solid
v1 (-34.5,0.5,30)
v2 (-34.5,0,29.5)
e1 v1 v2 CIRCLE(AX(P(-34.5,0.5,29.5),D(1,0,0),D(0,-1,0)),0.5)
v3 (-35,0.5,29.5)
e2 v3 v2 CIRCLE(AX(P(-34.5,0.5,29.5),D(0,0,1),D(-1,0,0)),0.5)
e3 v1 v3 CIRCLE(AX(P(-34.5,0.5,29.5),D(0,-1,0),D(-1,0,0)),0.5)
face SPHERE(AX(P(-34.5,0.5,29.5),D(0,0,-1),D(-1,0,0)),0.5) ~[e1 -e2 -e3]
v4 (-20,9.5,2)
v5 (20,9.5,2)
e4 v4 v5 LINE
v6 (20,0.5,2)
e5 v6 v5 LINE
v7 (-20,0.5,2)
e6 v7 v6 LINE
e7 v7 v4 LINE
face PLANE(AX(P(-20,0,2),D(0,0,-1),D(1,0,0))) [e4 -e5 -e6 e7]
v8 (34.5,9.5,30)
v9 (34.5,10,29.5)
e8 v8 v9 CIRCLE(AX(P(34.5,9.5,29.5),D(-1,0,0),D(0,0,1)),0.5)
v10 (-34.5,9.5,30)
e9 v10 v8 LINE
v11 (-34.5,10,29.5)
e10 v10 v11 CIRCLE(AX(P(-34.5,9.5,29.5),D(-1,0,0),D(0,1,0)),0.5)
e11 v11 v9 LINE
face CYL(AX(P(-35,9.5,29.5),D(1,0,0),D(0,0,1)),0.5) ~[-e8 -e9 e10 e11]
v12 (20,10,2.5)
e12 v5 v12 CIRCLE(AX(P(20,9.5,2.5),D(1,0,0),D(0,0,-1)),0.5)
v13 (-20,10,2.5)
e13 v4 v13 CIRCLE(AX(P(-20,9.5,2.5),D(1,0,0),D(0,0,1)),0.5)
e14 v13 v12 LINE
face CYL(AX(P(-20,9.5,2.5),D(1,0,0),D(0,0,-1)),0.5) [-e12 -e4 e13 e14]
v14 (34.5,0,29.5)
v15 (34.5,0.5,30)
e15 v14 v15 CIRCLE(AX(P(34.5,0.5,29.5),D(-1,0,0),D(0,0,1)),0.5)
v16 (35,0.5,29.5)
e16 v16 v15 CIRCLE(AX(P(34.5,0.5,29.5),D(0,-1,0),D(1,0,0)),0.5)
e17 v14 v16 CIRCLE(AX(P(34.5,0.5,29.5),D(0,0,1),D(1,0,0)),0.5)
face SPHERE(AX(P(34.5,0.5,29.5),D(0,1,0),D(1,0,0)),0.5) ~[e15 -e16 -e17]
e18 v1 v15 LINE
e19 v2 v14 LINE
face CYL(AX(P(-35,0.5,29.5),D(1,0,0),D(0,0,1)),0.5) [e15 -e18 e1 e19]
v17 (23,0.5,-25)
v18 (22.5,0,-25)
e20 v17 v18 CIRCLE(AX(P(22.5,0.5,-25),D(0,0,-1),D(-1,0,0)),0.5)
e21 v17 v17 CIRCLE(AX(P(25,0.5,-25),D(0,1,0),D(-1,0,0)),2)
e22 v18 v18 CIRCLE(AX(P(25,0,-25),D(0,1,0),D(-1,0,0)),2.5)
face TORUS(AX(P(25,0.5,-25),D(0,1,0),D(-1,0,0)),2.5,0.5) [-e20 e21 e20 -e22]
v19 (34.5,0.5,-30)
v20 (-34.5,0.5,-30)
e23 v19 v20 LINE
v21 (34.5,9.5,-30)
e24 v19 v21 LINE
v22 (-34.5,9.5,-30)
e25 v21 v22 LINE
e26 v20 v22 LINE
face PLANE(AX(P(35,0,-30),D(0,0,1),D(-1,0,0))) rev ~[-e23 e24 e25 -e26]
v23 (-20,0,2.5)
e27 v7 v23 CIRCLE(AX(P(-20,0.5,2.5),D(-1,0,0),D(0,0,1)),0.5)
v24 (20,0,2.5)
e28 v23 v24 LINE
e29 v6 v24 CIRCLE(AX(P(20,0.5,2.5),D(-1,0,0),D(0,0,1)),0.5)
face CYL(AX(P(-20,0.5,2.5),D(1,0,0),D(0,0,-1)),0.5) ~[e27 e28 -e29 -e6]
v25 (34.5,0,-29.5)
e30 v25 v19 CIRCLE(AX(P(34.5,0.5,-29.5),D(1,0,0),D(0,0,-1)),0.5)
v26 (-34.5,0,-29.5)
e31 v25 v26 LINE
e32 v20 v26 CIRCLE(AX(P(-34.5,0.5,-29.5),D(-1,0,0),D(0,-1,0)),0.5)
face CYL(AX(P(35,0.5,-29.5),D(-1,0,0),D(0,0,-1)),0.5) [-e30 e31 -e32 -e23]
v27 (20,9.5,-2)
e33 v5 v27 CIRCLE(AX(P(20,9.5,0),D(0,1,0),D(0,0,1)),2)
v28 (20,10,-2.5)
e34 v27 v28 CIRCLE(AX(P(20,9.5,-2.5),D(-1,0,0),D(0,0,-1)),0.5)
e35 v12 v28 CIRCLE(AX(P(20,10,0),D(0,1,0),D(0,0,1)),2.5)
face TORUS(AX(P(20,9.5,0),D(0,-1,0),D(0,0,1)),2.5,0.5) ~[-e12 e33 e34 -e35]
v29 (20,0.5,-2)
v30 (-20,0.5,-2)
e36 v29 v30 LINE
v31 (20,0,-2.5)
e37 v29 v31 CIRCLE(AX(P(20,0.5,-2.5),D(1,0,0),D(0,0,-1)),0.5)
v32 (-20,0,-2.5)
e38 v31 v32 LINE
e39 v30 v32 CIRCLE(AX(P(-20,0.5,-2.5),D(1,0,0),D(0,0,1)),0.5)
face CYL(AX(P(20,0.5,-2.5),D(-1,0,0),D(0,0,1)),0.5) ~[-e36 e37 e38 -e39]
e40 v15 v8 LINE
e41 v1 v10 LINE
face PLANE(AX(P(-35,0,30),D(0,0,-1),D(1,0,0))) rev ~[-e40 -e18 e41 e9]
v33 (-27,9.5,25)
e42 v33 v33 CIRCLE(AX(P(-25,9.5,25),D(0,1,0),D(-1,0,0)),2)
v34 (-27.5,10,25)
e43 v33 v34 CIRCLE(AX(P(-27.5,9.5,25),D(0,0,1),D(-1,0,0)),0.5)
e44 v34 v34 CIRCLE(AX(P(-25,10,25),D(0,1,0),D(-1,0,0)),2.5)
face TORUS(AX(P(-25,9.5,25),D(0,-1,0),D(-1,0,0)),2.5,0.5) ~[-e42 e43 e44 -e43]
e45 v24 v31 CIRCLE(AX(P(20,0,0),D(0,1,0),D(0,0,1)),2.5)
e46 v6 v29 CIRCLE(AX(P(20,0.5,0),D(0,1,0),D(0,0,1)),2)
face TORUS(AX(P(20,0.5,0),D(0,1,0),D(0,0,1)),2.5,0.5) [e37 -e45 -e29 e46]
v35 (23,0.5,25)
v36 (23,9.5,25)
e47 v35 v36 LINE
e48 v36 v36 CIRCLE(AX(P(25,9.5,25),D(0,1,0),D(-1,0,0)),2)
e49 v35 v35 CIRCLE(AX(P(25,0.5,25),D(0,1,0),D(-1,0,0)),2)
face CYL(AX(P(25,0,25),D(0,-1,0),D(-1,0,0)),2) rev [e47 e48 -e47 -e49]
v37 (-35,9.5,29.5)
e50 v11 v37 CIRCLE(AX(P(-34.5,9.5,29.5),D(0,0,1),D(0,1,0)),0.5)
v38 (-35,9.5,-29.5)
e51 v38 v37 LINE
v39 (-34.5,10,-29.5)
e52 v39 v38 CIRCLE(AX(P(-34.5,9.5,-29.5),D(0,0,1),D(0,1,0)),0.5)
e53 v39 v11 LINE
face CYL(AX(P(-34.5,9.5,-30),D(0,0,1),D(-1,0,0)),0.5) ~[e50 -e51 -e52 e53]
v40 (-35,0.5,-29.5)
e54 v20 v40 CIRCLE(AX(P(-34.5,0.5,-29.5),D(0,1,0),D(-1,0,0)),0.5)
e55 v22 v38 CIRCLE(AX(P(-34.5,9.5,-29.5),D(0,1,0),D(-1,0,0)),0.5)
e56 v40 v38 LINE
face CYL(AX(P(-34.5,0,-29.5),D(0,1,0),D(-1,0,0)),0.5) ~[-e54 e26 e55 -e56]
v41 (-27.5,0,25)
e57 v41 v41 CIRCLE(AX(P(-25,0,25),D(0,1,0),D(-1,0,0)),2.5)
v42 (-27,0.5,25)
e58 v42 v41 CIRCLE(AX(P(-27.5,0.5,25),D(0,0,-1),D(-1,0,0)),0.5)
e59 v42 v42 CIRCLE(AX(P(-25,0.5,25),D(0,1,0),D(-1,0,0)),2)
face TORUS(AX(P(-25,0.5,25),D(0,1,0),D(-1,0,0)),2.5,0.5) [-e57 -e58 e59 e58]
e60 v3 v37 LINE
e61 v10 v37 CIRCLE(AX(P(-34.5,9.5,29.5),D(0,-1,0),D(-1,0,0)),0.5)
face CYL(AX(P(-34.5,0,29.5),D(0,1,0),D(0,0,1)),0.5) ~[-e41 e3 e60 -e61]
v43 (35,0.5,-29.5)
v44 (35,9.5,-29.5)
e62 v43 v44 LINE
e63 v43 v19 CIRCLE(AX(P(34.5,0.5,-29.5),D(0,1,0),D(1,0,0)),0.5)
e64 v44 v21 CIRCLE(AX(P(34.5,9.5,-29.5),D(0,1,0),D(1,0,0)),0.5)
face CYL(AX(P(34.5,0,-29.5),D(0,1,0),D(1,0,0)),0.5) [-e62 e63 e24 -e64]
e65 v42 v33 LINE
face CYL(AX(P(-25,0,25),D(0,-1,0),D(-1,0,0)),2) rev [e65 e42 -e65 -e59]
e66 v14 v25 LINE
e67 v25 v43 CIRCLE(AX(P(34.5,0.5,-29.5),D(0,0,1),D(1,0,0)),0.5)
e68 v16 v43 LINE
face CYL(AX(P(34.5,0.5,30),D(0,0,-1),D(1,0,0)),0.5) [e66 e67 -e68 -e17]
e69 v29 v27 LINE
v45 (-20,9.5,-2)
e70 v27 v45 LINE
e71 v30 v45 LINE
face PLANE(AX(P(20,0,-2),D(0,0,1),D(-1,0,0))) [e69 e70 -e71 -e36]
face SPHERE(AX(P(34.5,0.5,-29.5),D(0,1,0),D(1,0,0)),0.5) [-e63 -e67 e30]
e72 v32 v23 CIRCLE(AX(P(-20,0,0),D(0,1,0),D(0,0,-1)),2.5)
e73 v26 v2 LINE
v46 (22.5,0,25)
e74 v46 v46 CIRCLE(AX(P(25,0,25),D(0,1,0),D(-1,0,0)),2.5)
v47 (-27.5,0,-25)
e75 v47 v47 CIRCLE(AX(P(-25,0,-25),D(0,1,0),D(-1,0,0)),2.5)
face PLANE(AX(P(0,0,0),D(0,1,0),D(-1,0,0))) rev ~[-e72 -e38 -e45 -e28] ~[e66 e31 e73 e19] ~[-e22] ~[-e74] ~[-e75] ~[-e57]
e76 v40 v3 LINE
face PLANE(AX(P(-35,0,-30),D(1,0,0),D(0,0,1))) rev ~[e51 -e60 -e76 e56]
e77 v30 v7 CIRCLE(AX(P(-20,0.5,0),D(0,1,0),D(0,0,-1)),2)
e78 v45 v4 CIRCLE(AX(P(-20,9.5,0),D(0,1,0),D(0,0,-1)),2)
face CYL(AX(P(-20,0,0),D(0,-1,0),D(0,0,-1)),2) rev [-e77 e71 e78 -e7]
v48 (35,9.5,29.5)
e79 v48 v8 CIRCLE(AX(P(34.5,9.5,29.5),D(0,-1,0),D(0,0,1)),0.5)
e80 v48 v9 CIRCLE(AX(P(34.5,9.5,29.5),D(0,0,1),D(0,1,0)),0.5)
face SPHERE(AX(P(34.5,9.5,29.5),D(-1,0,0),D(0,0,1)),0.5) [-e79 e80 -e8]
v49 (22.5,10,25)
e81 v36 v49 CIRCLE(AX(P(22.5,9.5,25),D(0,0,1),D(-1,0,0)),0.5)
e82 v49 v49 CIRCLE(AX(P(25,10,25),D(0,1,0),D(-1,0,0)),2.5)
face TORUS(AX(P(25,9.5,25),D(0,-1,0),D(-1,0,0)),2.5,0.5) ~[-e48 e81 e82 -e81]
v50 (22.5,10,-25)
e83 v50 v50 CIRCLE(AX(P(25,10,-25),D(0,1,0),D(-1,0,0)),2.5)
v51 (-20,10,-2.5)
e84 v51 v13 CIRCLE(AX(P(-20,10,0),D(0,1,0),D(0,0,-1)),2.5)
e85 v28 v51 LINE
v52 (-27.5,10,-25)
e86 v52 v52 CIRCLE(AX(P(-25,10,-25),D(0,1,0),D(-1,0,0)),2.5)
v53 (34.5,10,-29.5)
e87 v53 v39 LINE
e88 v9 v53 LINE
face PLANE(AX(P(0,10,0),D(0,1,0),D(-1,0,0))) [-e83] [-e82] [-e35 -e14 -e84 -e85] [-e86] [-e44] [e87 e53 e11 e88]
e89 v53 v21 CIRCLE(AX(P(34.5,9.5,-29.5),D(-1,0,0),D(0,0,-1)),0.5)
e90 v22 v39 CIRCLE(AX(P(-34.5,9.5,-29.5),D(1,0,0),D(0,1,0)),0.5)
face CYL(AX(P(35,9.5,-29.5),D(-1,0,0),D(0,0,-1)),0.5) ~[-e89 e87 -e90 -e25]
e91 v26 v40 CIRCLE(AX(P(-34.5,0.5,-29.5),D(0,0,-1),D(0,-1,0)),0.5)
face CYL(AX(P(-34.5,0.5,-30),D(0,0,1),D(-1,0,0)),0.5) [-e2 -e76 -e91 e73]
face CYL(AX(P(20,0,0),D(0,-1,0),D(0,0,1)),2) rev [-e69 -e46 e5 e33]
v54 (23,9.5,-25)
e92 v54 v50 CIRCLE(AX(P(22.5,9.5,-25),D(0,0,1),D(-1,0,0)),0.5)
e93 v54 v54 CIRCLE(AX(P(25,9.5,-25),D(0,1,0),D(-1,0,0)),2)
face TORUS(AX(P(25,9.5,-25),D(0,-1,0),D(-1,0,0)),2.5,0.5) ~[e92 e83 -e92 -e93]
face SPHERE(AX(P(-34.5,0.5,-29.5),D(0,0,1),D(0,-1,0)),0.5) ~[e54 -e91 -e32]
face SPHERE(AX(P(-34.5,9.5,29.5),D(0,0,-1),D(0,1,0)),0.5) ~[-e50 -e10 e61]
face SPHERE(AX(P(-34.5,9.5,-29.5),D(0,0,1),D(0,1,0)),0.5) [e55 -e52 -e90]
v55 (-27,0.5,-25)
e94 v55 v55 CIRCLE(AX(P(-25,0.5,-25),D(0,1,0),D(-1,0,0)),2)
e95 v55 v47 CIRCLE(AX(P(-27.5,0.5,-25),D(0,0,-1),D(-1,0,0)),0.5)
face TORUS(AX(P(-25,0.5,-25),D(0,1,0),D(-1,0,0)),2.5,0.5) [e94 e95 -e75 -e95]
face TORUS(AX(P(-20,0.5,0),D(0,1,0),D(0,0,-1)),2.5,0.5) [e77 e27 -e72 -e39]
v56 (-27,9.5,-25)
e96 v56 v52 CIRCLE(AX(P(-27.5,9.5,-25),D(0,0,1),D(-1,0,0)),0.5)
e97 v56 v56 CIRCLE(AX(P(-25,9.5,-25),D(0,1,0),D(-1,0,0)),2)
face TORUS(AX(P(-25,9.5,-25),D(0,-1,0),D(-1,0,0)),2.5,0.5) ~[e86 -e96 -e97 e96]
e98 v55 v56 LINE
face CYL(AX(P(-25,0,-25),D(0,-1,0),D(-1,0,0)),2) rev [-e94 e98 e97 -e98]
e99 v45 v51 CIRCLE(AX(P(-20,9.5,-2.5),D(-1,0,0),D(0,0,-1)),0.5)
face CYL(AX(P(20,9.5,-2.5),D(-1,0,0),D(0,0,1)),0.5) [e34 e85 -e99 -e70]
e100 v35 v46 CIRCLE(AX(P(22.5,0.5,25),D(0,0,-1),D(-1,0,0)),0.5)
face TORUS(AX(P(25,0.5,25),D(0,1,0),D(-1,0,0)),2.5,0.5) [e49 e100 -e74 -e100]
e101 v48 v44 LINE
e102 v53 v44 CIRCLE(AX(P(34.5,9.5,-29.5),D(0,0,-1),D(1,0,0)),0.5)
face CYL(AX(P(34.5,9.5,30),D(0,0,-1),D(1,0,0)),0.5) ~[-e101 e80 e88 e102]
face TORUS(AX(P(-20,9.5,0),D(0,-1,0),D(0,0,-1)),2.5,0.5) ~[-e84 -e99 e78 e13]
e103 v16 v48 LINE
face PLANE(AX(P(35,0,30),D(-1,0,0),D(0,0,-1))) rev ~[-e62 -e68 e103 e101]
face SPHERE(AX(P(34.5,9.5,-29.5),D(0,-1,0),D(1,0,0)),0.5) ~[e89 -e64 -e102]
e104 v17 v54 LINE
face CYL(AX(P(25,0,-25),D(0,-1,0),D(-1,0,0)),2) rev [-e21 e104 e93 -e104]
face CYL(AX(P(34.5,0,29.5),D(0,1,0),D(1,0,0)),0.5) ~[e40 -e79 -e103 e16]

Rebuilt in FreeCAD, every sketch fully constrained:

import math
import FreeCAD as App
import Part
import Sketcher

V = App.Vector
Q = App.Units.Quantity

doc = App.newDocument("Part")
body = doc.addObject("PartDesign::Body", "Body")

# Sketch on XZ plane
sketch1 = body.newObject("Sketcher::SketchObject", "Sketch")
sketch1.AttachmentSupport = (doc.getObject("XZ_Plane"), [""])
sketch1.MapMode = "FlatFace"
sketch1.addGeometry(Part.LineSegment(V(35, 30, 0), V(35, -30, 0)), False)
sketch1.addGeometry(Part.LineSegment(V(35, -30, 0), V(-35, -30, 0)), False)
sketch1.addGeometry(Part.LineSegment(V(-35, -30, 0), V(-35, 30, 0)), False)
sketch1.addGeometry(Part.LineSegment(V(-35, 30, 0), V(35, 30, 0)), False)
sketch1.addGeometry(Part.Circle(V(25, -25, 0), V(0, 0, 1), 2), False)
sketch1.addGeometry(Part.Circle(V(-25, -25, 0), V(0, 0, 1), 2), False)
sketch1.addGeometry(Part.Circle(V(25, 25, 0), V(0, 0, 1), 2), False)
sketch1.addGeometry(Part.ArcOfCircle(Part.Circle(V(-20, 0, 0), V(0, 0, 1), 2), math.radians(90), math.radians(270)), False)
sketch1.addGeometry(Part.LineSegment(V(-20, -2, 0), V(20, -2, 0)), False)
sketch1.addGeometry(Part.ArcOfCircle(Part.Circle(V(20, 0, 0), V(0, 0, 1), 2), math.radians(-90), math.radians(90)), False)
sketch1.addGeometry(Part.LineSegment(V(20, 2, 0), V(-20, 2, 0)), False)
sketch1.addGeometry(Part.Circle(V(-25, 25, 0), V(0, 0, 1), 2), False)
sketch1.addConstraint(Sketcher.Constraint("Coincident", 0, 2, 1, 1))
sketch1.addConstraint(Sketcher.Constraint("Coincident", 1, 2, 2, 1))
sketch1.addConstraint(Sketcher.Constraint("Coincident", 2, 2, 3, 1))
sketch1.addConstraint(Sketcher.Constraint("Coincident", 3, 2, 0, 1))
sketch1.addConstraint(Sketcher.Constraint("Tangent", 7, 2, 8, 1))
sketch1.addConstraint(Sketcher.Constraint("Tangent", 8, 2, 9, 1))
sketch1.addConstraint(Sketcher.Constraint("Tangent", 9, 2, 10, 1))
sketch1.addConstraint(Sketcher.Constraint("Tangent", 10, 2, 7, 1))
sketch1.addConstraint(Sketcher.Constraint("Vertical", 0))
sketch1.addConstraint(Sketcher.Constraint("Horizontal", 1))
sketch1.addConstraint(Sketcher.Constraint("Vertical", 2))
sketch1.addConstraint(Sketcher.Constraint("Horizontal", 3))
sketch1.addConstraint(Sketcher.Constraint("Horizontal", 8))
sketch1.addConstraint(Sketcher.Constraint("Horizontal", 10))
sketch1.addConstraint(Sketcher.Constraint("Equal", 4, 5))
sketch1.addConstraint(Sketcher.Constraint("Equal", 5, 6))
sketch1.addConstraint(Sketcher.Constraint("Equal", 6, 7))
sketch1.addConstraint(Sketcher.Constraint("Equal", 9, 11))
sketch1.addConstraint(Sketcher.Constraint("Symmetric", 5, 3, 6, 3, -1, 1))
sketch1.addConstraint(Sketcher.Constraint("Symmetric", 7, 3, 9, 3, -1, 1))
sketch1.addConstraint(Sketcher.Constraint("Symmetric", 4, 3, 11, 3, -1, 1))
sketch1.addConstraint(Sketcher.Constraint("Symmetric", 0, 2, 2, 2, -1, 1))
sketch1.addConstraint(Sketcher.Constraint("Symmetric", 4, 3, 5, 3, -2))
sketch1.addConstraint(Sketcher.Constraint("Diameter", 4, Q("4 mm")))
sketch1.addConstraint(Sketcher.Constraint("DistanceX", 1, 2, 1, 1, Q("70 mm")))
sketch1.addConstraint(Sketcher.Constraint("DistanceX", 8, 1, 8, 2, Q("40 mm")))
sketch1.addConstraint(Sketcher.Constraint("DistanceY", 0, 2, 0, 1, Q("60 mm")))
sketch1.addConstraint(Sketcher.Constraint("DistanceX", 5, 3, 7, 3, Q("5 mm")))
sketch1.addConstraint(Sketcher.Constraint("DistanceY", 0, 2, 4, 3, Q("5 mm")))
pad1 = body.newObject("PartDesign::Pad", "Pad")
pad1.Profile = sketch1
pad1.Length = 10
pad1.Reversed = True
doc.recompute()

fillet = body.newObject("PartDesign::Fillet", "Fillet")
fillet.Base = (pad1, ["Edge1"])
fillet.UseAllEdges = True
fillet.Radius = 0.5

doc.recompute()
